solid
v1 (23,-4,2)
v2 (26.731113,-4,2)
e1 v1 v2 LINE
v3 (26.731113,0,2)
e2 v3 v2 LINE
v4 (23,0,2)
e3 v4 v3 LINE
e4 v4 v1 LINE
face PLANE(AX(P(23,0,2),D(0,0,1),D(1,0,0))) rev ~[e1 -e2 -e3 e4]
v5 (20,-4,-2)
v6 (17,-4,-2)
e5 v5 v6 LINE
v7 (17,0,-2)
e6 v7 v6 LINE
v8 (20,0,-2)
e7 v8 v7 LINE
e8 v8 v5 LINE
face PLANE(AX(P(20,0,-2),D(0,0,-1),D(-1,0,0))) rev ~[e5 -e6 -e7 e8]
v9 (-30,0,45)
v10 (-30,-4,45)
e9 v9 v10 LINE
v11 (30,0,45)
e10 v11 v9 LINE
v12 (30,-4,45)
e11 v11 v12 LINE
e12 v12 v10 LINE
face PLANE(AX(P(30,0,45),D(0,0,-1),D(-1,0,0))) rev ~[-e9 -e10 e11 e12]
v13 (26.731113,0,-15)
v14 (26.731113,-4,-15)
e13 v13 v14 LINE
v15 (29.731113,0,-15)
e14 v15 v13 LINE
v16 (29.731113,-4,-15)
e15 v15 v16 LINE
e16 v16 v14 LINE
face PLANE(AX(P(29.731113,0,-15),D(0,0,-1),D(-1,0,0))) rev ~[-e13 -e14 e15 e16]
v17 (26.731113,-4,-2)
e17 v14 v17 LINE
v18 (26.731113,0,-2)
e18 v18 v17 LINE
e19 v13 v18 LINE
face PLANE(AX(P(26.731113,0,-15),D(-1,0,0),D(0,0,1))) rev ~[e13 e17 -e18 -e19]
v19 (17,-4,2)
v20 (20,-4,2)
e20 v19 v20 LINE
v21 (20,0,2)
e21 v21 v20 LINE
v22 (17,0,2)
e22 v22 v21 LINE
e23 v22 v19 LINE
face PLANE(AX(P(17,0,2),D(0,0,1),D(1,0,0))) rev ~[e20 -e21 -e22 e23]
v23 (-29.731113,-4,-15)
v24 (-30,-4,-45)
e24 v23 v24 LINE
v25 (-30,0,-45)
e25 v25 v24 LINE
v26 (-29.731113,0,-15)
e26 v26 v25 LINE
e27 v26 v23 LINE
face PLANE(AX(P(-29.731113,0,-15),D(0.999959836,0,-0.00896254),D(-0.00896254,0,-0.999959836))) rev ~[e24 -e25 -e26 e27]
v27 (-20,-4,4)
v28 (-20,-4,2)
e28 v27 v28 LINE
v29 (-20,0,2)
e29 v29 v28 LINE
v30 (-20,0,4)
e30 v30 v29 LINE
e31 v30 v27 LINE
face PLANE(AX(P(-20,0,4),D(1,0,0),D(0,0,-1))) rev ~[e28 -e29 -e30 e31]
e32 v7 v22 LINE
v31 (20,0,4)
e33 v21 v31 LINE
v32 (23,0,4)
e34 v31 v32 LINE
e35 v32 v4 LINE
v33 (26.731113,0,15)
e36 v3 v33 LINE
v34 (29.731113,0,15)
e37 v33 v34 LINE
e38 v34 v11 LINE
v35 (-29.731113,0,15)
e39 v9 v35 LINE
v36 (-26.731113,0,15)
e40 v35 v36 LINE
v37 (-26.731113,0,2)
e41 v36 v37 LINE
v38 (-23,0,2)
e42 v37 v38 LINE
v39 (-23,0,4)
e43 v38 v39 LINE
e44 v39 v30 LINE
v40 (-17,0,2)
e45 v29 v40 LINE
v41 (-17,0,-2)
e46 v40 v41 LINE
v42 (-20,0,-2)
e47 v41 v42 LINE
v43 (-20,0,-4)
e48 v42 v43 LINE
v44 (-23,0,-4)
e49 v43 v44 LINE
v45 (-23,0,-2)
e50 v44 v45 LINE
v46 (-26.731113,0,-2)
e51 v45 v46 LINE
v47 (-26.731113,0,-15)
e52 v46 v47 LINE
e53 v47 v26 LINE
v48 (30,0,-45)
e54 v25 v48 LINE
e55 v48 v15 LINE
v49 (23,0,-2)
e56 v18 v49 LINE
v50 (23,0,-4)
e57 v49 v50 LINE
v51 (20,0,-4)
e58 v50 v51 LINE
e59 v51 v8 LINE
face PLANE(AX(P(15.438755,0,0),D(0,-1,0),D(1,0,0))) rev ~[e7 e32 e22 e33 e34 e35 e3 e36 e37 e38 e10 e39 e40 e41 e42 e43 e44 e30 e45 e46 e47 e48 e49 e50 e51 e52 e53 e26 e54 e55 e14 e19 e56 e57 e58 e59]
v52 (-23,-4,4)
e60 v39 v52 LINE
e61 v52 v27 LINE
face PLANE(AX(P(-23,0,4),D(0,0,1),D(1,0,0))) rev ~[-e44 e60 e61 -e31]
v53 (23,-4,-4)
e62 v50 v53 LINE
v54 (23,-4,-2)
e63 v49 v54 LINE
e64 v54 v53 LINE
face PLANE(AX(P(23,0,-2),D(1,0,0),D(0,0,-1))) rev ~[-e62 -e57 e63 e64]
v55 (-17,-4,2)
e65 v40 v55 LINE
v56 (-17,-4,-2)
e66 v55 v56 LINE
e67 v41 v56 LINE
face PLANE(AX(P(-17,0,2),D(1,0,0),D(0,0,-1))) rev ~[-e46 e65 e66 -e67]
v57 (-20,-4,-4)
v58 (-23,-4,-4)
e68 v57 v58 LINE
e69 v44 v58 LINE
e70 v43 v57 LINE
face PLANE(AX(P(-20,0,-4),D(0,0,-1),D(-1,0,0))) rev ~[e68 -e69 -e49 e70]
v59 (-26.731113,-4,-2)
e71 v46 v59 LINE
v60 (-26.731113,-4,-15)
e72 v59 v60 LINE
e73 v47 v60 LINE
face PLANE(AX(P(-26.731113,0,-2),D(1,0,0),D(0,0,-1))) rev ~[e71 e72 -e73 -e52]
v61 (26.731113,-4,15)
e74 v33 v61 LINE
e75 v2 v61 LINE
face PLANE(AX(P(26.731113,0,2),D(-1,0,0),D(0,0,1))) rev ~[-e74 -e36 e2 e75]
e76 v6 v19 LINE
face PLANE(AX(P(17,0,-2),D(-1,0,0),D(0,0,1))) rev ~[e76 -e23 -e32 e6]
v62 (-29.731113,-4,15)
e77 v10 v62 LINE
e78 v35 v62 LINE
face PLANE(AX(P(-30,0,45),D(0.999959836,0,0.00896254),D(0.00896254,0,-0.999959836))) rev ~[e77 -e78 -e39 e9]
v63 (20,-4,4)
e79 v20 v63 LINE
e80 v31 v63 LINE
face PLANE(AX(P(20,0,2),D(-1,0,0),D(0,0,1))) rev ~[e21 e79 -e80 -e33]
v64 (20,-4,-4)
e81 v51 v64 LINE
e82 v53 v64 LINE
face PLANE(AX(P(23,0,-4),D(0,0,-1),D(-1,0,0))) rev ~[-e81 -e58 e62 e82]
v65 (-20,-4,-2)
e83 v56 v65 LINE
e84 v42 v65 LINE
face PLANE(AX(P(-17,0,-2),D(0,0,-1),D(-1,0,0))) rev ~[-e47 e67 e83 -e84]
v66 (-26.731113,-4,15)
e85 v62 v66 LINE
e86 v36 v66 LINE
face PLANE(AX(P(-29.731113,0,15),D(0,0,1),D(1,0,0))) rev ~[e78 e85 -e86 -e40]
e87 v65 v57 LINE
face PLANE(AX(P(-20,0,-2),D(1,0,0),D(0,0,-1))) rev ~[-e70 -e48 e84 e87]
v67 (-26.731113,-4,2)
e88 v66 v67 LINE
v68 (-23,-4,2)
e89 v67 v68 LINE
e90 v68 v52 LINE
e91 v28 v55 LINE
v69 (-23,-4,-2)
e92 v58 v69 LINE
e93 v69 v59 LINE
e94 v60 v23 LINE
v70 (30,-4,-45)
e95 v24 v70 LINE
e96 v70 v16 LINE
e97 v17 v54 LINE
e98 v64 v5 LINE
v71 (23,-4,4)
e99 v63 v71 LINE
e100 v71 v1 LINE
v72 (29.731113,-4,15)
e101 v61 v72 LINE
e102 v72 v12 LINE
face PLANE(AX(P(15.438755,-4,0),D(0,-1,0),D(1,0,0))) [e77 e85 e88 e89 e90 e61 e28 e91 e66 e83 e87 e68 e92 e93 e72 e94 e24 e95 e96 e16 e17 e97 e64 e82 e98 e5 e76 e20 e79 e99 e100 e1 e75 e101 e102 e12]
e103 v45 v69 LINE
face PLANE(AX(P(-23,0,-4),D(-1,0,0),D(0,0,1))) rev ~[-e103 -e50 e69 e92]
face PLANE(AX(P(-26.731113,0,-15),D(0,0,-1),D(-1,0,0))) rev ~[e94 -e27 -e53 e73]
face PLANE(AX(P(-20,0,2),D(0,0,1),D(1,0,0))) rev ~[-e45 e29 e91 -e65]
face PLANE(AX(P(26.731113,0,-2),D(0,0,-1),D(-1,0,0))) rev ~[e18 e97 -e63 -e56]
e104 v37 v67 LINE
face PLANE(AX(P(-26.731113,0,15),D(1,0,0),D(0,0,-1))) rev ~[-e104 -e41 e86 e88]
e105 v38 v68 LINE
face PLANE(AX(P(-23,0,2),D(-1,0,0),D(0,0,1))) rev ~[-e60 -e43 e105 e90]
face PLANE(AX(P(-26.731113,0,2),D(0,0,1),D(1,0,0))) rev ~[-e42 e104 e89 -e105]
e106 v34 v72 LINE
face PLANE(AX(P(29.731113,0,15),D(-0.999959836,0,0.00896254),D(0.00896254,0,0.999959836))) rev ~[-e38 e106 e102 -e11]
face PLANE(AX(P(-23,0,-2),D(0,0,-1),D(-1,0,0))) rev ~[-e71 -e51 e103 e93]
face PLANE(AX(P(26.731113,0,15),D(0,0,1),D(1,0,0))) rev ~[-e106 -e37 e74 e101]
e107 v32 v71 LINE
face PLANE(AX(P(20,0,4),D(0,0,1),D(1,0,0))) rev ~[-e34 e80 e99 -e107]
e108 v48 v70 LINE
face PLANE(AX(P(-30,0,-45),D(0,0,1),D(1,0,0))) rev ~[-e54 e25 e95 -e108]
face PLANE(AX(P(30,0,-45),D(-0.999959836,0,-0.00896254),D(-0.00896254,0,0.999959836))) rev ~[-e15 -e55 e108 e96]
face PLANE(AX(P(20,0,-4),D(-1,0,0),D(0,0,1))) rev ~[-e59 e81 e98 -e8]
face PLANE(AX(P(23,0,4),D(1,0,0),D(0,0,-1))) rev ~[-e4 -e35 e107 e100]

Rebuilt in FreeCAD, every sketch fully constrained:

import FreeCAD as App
import Part
import Sketcher


def add_polygon(sketch, points):
    """Adds a closed chain of lines whose ends are joined by coincident constraints."""
    first, n = sketch.GeometryCount, len(points)
    for a, b in zip(points, points[1:] + points[:1]):
        sketch.addGeometry(Part.LineSegment(App.Vector(*a, 0), App.Vector(*b, 0)), False)
    for i in range(n):
        sketch.addConstraint(Sketcher.Constraint("Coincident", first + i, 2, first + (i + 1) % n, 1))

doc = App.newDocument("Part")
body = doc.addObject("PartDesign::Body", "Body")

sketch1 = body.newObject("Sketcher::SketchObject", "Sketch")
sketch1.AttachmentSupport = (doc.getObject("XZ_Plane"), [""])
sketch1.MapMode = "FlatFace"
add_polygon(sketch1, [(29.7, 15), (30, 45), (-30, 45), (-29.7, 15), (-26.7, 15), (-26.7, 2), (-23, 2), (-23, 4), (-20, 4), (-20, 2), (-17, 2), (-17, -2), (-20, -2), (-20, -4), (-23, -4), (-23, -2), (-26.7, -2), (-26.7, -15), (-29.7, -15), (-30, -45), (30, -45), (29.7, -15), (26.7, -15), (26.7, -2), (23, -2), (23, -4), (20, -4), (20, -2), (17, -2), (17, 2), (20, 2), (20, 4), (23, 4), (23, 2), (26.7, 2), (26.7, 15)])
sketch1.addConstraint([
    Sketcher.Constraint("Horizontal", 1),
    Sketcher.Constraint("Horizontal", 3),
    Sketcher.Constraint("Vertical", 4),
    Sketcher.Constraint("Horizontal", 5),
    Sketcher.Constraint("Vertical", 6),
    Sketcher.Constraint("Horizontal", 7),
    Sketcher.Constraint("Vertical", 8),
    Sketcher.Constraint("Horizontal", 9),
    Sketcher.Constraint("Vertical", 10),
    Sketcher.Constraint("Horizontal", 11),
    Sketcher.Constraint("Vertical", 12),
    Sketcher.Constraint("Horizontal", 13),
    Sketcher.Constraint("Vertical", 14),
    Sketcher.Constraint("Horizontal", 15),
    Sketcher.Constraint("Vertical", 16),
    Sketcher.Constraint("Horizontal", 17),
    Sketcher.Constraint("Horizontal", 19),
    Sketcher.Constraint("Horizontal", 21),
    Sketcher.Constraint("Vertical", 22),
    Sketcher.Constraint("Horizontal", 23),
    Sketcher.Constraint("Vertical", 24),
    Sketcher.Constraint("Horizontal", 25),
    Sketcher.Constraint("Vertical", 26),
    Sketcher.Constraint("Horizontal", 27),
    Sketcher.Constraint("Vertical", 28),
    Sketcher.Constraint("Horizontal", 29),
    Sketcher.Constraint("Vertical", 30),
    Sketcher.Constraint("Horizontal", 31),
    Sketcher.Constraint("Vertical", 32),
    Sketcher.Constraint("Horizontal", 33),
    Sketcher.Constraint("Vertical", 34),
    Sketcher.Constraint("Horizontal", 35),
    Sketcher.Constraint("Symmetric", 0, 2, 18, 2, -1, 1),
    Sketcher.Constraint("Symmetric", 2, 2, 20, 2, -1, 1),
    Sketcher.Constraint("Symmetric", 4, 2, 22, 2, -1, 1),
    Sketcher.Constraint("Symmetric", 6, 2, 24, 2, -1, 1),
    Sketcher.Constraint("Symmetric", 8, 2, 26, 2, -1, 1),
    Sketcher.Constraint("Symmetric", 10, 2, 28, 2, -1, 1),
    Sketcher.Constraint("Symmetric", 12, 2, 30, 2, -1, 1),
    Sketcher.Constraint("Symmetric", 14, 2, 32, 2, -1, 1),
    Sketcher.Constraint("Symmetric", 16, 2, 34, 2, -1, 1),
    Sketcher.Constraint("Symmetric", 17, 2, 20, 2, -2),
    Sketcher.Constraint("Symmetric", 15, 2, 22, 2, -2),
    Sketcher.Constraint("Symmetric", 13, 2, 24, 2, -2),
    Sketcher.Constraint("Symmetric", 11, 2, 26, 2, -2),
    Sketcher.Constraint("Parallel", 0, 18),
    Sketcher.Constraint("Parallel", 2, 20),
    Sketcher.Constraint("Horizontal", 5, 2, 8, 2),
    Sketcher.Constraint("Vertical", 1, 2, 18, 2),
    Sketcher.Constraint("Equal", 3, 7),
    Sketcher.Constraint("Equal", 7, 9),
    Sketcher.Constraint("DistanceX", 1, 2, 1, 1, 60.0),
    Sketcher.Constraint("DistanceX", 3, 1, 3, 2, 3.0),
    Sketcher.Constraint("DistanceY", 4, 2, 4, 1, 13.0),
    Sketcher.Constraint("DistanceY", 6, 1, 6, 2, 2.0),
    Sketcher.Constraint("DistanceY", 10, 2, 10, 1, 4.0),
    Sketcher.Constraint("DistanceY", -1, 1, 0, 2, 45.0),
    Sketcher.Constraint("DistanceX", 5, 2, -1, 1, 23.0),
    Sketcher.Constraint("DistanceX", 5, 1, 5, 2, 3.731113),
])
pad1 = body.newObject("PartDesign::Pad", "Pad")
pad1.Profile = sketch1
pad1.Length = 4

doc.recompute()
